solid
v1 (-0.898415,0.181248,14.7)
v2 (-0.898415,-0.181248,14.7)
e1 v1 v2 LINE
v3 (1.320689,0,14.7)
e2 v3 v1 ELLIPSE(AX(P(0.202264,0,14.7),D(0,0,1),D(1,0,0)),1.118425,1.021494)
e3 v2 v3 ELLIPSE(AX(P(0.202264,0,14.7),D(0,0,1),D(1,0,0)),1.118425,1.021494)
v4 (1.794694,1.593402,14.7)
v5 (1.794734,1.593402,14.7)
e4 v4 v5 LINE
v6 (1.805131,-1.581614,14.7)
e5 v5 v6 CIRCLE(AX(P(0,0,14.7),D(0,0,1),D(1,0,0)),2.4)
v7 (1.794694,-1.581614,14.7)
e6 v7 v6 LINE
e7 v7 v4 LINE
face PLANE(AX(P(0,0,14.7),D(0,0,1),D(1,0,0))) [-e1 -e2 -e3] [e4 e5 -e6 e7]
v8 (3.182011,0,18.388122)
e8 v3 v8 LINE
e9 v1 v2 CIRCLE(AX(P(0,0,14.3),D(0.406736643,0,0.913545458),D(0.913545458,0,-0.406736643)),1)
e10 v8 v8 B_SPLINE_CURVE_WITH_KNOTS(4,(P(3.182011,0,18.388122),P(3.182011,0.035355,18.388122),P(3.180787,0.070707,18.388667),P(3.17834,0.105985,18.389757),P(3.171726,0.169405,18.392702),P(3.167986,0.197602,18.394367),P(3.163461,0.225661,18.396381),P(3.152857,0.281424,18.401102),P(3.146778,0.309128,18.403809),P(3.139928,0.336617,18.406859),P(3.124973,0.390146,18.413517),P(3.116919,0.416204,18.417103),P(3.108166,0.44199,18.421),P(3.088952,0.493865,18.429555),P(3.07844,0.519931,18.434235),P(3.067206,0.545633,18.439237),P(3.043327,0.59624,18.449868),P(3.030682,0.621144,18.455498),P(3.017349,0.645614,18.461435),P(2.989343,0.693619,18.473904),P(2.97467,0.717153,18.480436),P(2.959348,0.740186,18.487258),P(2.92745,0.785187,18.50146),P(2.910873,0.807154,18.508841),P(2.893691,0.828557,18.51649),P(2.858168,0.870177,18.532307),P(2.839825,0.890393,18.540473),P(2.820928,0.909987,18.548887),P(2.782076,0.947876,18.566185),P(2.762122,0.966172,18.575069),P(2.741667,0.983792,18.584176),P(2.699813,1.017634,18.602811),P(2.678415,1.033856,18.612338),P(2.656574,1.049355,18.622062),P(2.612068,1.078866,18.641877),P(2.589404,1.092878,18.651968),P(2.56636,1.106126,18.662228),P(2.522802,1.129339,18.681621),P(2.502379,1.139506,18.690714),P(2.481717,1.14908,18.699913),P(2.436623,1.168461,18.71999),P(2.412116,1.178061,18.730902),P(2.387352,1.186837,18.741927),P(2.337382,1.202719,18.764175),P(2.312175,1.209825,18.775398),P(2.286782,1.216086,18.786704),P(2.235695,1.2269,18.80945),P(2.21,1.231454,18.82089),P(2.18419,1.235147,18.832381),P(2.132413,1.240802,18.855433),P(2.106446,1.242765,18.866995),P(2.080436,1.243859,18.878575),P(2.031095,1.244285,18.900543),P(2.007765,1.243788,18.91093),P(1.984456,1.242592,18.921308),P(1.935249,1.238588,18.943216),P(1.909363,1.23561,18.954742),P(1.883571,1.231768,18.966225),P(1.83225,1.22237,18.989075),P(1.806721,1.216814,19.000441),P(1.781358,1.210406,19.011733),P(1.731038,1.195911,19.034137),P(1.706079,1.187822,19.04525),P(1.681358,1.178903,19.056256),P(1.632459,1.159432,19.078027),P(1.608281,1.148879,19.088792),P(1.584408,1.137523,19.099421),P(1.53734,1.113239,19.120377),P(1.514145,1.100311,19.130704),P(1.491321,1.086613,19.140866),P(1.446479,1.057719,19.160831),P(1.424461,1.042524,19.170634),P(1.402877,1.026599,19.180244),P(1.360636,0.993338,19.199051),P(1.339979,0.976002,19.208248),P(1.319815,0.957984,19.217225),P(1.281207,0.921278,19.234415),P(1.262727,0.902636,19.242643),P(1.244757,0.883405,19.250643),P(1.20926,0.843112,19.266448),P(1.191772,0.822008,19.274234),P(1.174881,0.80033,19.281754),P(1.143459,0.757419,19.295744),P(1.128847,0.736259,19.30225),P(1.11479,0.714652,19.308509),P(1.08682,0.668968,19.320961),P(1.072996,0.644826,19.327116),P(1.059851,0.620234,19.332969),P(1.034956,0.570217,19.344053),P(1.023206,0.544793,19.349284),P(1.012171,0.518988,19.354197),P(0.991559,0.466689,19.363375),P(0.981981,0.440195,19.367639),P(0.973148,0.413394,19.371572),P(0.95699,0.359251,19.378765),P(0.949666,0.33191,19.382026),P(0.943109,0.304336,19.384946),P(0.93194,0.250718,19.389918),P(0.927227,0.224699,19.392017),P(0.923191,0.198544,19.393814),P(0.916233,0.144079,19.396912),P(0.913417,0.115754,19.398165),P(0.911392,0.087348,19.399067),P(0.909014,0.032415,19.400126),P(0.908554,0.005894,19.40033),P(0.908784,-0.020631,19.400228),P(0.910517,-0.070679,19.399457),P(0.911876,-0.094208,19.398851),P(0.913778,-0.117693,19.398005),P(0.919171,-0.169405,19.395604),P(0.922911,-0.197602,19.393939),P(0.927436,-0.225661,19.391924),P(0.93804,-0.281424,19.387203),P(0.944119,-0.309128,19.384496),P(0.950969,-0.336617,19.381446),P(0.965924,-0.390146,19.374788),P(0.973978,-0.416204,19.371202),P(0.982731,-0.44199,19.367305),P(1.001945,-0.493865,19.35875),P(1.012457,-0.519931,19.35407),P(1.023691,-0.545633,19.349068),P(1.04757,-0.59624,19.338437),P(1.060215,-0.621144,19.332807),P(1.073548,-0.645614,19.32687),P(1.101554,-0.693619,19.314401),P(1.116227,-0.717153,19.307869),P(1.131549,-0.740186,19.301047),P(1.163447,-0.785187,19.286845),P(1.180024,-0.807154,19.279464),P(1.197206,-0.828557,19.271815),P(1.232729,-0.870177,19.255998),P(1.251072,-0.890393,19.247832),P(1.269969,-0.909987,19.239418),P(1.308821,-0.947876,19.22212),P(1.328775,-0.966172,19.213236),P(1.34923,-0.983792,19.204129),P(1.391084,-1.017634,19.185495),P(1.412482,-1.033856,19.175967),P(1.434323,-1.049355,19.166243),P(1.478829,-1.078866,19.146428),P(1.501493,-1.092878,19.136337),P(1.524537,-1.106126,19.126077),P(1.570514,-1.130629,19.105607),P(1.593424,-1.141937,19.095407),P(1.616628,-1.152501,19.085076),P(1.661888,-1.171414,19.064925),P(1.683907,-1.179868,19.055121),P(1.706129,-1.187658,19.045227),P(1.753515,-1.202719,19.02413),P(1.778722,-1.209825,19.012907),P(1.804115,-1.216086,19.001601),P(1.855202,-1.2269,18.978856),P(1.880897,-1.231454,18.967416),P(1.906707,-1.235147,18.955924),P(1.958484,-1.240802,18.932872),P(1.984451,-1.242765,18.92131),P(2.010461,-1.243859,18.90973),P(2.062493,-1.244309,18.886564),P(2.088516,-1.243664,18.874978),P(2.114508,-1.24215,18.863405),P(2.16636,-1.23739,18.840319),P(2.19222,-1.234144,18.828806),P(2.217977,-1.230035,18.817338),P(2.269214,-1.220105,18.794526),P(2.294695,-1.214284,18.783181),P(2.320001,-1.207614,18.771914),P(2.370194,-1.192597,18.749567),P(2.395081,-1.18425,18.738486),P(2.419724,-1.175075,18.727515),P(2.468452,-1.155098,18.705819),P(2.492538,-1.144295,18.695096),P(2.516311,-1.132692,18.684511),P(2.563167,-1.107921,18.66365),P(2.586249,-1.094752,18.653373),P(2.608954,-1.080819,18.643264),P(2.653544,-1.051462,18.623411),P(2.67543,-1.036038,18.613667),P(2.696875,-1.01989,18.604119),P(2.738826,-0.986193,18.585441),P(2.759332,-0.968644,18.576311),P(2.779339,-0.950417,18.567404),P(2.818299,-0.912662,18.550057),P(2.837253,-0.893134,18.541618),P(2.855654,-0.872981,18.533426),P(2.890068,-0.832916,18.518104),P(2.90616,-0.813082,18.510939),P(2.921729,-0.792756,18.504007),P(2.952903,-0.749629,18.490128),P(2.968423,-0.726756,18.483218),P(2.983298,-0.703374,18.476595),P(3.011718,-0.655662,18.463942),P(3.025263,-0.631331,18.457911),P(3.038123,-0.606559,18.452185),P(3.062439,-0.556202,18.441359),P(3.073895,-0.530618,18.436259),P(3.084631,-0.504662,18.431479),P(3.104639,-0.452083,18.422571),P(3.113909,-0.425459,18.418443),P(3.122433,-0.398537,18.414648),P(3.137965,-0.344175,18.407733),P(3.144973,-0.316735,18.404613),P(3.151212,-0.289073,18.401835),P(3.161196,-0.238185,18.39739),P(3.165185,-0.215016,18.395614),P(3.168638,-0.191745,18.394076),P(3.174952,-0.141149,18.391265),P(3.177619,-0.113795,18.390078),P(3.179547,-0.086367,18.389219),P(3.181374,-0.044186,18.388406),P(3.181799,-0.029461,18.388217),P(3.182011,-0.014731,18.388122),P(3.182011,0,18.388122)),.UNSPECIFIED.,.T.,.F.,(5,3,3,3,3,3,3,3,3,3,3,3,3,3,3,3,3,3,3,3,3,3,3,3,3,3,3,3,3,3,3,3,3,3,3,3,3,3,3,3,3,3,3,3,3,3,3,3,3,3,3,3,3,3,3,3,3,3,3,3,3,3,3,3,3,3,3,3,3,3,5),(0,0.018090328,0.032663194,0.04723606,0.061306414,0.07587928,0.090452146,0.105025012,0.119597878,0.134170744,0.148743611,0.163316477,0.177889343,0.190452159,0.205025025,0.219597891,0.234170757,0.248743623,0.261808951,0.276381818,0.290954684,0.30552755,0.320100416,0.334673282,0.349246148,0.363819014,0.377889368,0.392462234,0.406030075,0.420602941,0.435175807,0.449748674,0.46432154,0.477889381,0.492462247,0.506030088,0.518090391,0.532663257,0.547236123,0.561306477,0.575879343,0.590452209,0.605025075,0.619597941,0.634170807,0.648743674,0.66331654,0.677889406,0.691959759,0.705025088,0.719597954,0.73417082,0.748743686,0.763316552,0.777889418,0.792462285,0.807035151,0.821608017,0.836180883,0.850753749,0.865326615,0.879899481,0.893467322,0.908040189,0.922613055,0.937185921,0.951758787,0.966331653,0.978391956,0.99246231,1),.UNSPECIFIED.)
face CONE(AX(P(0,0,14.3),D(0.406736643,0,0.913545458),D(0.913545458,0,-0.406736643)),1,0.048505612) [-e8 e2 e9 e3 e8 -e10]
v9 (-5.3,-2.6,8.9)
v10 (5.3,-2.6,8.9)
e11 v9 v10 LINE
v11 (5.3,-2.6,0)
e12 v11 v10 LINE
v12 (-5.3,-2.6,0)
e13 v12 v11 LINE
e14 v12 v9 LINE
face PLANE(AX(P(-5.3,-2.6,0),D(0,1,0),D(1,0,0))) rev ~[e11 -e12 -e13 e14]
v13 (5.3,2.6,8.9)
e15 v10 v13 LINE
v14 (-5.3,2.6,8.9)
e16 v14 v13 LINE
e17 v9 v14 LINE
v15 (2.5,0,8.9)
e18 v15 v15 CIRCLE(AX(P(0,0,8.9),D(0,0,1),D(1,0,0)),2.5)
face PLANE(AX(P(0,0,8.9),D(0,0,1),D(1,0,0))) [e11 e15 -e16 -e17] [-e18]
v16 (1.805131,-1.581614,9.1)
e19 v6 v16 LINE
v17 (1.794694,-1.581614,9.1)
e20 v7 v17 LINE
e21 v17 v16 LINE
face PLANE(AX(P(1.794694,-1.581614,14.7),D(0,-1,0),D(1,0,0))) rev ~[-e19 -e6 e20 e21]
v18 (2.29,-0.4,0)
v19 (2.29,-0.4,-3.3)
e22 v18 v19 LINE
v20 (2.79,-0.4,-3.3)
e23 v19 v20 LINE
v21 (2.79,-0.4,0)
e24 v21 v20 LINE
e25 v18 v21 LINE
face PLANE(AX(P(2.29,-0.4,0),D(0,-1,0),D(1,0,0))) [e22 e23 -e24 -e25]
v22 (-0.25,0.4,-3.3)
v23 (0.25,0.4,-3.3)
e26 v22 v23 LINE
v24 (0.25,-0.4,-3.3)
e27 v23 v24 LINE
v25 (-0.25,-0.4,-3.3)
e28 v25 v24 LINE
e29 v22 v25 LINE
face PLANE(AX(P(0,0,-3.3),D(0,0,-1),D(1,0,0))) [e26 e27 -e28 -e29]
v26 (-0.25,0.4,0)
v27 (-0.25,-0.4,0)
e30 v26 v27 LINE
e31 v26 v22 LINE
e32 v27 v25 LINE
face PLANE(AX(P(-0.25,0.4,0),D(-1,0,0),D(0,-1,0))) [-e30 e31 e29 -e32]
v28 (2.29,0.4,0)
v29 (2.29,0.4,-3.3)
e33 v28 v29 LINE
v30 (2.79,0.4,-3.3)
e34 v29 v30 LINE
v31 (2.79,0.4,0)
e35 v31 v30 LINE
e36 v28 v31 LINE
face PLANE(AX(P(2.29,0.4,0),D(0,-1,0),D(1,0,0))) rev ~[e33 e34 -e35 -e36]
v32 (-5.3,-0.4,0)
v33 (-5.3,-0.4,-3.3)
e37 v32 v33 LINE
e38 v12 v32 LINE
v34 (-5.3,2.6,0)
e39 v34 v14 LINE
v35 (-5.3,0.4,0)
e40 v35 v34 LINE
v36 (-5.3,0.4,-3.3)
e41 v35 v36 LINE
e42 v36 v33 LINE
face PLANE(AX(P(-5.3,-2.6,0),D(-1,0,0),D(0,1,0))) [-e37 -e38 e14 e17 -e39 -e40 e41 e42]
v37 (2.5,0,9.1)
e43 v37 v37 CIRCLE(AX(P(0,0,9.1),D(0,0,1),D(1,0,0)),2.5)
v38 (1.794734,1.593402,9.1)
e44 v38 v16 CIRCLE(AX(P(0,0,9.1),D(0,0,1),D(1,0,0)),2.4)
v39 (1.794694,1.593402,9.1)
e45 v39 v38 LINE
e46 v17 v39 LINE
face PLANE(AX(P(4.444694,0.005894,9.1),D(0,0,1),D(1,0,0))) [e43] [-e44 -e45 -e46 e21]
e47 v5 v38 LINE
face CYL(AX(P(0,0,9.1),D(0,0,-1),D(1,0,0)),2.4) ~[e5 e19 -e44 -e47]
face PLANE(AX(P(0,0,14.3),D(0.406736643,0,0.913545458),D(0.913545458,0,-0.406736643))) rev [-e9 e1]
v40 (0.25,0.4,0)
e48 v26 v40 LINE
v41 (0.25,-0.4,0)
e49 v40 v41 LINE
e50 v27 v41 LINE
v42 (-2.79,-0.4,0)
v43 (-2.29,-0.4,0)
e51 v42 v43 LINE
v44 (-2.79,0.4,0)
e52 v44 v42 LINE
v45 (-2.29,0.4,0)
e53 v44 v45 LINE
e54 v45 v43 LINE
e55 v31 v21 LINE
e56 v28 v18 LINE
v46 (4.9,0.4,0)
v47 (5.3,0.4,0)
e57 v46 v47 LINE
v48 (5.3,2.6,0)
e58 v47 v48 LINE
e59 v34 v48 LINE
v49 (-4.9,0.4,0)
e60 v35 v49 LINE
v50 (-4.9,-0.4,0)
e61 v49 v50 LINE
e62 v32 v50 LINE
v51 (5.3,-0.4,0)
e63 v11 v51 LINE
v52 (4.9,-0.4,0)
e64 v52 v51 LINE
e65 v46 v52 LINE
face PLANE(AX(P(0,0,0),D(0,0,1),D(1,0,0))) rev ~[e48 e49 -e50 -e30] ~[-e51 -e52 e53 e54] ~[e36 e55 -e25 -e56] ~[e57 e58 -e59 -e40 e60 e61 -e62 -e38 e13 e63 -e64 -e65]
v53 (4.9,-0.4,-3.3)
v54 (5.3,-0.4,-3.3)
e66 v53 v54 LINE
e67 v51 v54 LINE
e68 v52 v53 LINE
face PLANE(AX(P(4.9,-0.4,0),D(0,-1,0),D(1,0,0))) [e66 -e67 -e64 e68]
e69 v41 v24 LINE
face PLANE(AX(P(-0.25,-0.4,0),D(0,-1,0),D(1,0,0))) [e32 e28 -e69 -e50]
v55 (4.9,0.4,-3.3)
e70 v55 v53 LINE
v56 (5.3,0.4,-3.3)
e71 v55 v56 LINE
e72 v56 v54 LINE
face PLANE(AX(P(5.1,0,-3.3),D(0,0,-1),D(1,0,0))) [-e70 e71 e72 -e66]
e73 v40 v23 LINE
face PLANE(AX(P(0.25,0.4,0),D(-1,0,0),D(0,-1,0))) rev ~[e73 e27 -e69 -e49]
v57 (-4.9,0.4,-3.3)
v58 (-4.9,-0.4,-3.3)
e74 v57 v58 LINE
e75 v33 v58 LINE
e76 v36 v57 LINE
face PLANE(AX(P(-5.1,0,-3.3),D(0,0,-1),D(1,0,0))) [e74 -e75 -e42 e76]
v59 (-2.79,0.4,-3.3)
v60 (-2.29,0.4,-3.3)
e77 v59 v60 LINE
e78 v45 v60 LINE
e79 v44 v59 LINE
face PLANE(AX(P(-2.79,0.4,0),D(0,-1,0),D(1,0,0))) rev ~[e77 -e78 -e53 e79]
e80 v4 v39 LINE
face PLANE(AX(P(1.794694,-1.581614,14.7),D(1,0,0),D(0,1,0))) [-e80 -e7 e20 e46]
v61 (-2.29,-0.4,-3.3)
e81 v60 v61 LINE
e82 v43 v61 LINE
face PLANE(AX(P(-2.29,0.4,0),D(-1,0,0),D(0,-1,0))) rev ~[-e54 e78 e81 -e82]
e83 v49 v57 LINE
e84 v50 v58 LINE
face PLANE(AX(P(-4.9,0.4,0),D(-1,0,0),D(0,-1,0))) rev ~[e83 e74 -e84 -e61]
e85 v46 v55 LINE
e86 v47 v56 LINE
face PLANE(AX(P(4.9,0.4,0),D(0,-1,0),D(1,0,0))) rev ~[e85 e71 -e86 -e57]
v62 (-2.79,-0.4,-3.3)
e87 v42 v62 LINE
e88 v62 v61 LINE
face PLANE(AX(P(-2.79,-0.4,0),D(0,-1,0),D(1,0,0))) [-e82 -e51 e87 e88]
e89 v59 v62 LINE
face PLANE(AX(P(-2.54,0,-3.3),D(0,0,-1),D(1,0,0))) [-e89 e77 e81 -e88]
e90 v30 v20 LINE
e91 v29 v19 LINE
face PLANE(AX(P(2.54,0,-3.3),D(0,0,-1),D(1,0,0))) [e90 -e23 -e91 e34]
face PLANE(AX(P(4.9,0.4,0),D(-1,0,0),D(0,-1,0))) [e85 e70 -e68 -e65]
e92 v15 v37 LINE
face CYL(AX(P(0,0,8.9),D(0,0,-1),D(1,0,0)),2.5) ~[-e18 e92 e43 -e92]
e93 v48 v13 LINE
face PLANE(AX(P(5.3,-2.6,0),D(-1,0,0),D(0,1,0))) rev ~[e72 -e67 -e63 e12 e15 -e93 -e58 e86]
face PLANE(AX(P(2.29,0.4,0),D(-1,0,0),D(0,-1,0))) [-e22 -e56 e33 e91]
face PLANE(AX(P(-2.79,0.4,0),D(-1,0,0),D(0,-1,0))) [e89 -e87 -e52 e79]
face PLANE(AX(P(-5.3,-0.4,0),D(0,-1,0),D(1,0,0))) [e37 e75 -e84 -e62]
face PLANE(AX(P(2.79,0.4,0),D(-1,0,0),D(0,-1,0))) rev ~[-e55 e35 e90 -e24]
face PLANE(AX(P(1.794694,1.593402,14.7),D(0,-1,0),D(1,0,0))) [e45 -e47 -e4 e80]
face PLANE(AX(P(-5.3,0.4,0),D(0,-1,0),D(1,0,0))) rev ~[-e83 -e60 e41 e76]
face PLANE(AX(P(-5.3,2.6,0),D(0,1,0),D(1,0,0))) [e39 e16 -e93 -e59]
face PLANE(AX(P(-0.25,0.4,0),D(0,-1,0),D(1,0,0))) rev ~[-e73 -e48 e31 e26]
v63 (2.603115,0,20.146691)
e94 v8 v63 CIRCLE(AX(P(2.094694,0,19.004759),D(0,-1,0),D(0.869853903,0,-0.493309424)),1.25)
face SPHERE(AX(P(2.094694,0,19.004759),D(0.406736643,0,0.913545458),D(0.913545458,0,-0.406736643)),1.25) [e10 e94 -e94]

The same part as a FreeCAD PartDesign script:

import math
import FreeCAD as App
import Part
import Sketcher
Q = App.Units.Quantity


def add_polygon(sketch, points):
    """Adds a closed chain of lines whose ends are joined by coincident constraints."""
    first, n = sketch.GeometryCount, len(points)
    for a, b in zip(points, points[1:] + points[:1]):
        sketch.addGeometry(Part.LineSegment(App.Vector(*a, 0), App.Vector(*b, 0)), False)
    for i in range(n):
        sketch.addConstraint(Sketcher.Constraint("Coincident", first + i, 2, first + (i + 1) % n, 1))

doc = App.newDocument("Part")
body = doc.addObject("PartDesign::Body", "Body")

sketch1 = body.newObject("Sketcher::SketchObject", "Sketch")
sketch1.AttachmentSupport = (doc.getObject("XY_Plane"), [""])
sketch1.MapMode = "FlatFace"
add_polygon(sketch1, [(-5, 3), (-5, -3), (5, -3), (5, 3)])
sketch1.addConstraint([
    Sketcher.Constraint("Vertical", 0),
    Sketcher.Constraint("Horizontal", 1),
    Sketcher.Constraint("Vertical", 2),
    Sketcher.Constraint("Horizontal", 3),
    Sketcher.Constraint("Symmetric", 0, 2, 2, 2, -1, 1),
    Sketcher.Constraint("DistanceX", 1, 1, 1, 2, 10.6),
    Sketcher.Constraint("DistanceY", 0, 2, 0, 1, 5.2),
])
pad1 = body.newObject("PartDesign::Pad", "Pad")
pad1.Profile = sketch1
pad1.Length = 8.9

sketch2 = body.newObject("Sketcher::SketchObject", "Sketch001")
sketch2.AttachmentSupport = (doc.getObject("XY_Plane"), [""])
sketch2.MapMode = "FlatFace"
sketch2.AttachmentOffset = App.Placement(App.Vector(0, 0, 8.9), App.Rotation())
sketch2.addGeometry(Part.Circle(App.Vector(0, 0, 0), App.Vector(0, 0, 1), 2.5), False)
sketch2.addConstraint([
    Sketcher.Constraint("Coincident", 0, 3, -1, 1),
    Sketcher.Constraint("Diameter", 0, 5.0),
])
pad2 = body.newObject("PartDesign::Pad", "Pad001")
pad2.Profile = sketch2
pad2.Length = 0.2

sketch3 = body.newObject("Sketcher::SketchObject", "Sketch002")
sketch3.AttachmentSupport = (doc.getObject("XY_Plane"), [""])
sketch3.MapMode = "FlatFace"
sketch3.AttachmentOffset = App.Placement(App.Vector(0, 0, 9.1), App.Rotation())
sketch3.addGeometry(Part.Circle(App.Vector(0, 0, 0), App.Vector(0, 0, 1), 2.4), False)
sketch3.addConstraint([
    Sketcher.Constraint("Coincident", 0, 3, -1, 1),
    Sketcher.Constraint("Diameter", 0, 4.8),
])
pad3 = body.newObject("PartDesign::Pad", "Pad002")
pad3.Profile = sketch3
pad3.Length = 5.6

sketch4 = body.newObject("Sketcher::SketchObject", "Sketch003")
sketch4.AttachmentSupport = (doc.getObject("XY_Plane"), [""])
sketch4.MapMode = "FlatFace"
add_polygon(sketch4, [(-0.25, -0.4), (-0.25, 0.4), (0.25, 0.4), (0.25, -0.4)])
add_polygon(sketch4, [(-2.79, -0.4), (-2.79, 0.4), (-2.29, 0.4), (-2.29, -0.4)])
add_polygon(sketch4, [(2.29, -0.4), (2.29, 0.4), (2.79, 0.4), (2.79, -0.4)])
add_polygon(sketch4, [(-5.3, -0.4), (-5.3, 0.4), (-4.9, 0.4), (-4.9, -0.4)])
add_polygon(sketch4, [(4.9, -0.4), (4.9, 0.4), (5.3, 0.4), (5.3, -0.4)])
sketch4.addConstraint([
    Sketcher.Constraint("Vertical", 0),
    Sketcher.Constraint("Horizontal", 1),
    Sketcher.Constraint("Vertical", 2),
    Sketcher.Constraint("Horizontal", 3),
    Sketcher.Constraint("Vertical", 4),
    Sketcher.Constraint("Horizontal", 5),
    Sketcher.Constraint("Vertical", 6),
    Sketcher.Constraint("Horizontal", 7),
    Sketcher.Constraint("Vertical", 8),
    Sketcher.Constraint("Horizontal", 9),
    Sketcher.Constraint("Vertical", 10),
    Sketcher.Constraint("Horizontal", 11),
    Sketcher.Constraint("Vertical", 12),
    Sketcher.Constraint("Horizontal", 13),
    Sketcher.Constraint("Vertical", 14),
    Sketcher.Constraint("Horizontal", 15),
    Sketcher.Constraint("Vertical", 16),
    Sketcher.Constraint("Horizontal", 17),
    Sketcher.Constraint("Vertical", 18),
    Sketcher.Constraint("Horizontal", 19),
    Sketcher.Constraint("Symmetric", 0, 2, 2, 2, -1, 1),
    Sketcher.Constraint("Symmetric", 6, 2, 8, 2, -1, 1),
    Sketcher.Constraint("Symmetric", 4, 2, 10, 2, -1, 1),
    Sketcher.Constraint("Symmetric", 14, 2, 16, 2, -1, 1),
    Sketcher.Constraint("Symmetric", 12, 2, 18, 2, -1, 1),
    Sketcher.Constraint("Horizontal", 1, 2, 4, 2),
    Sketcher.Constraint("Horizontal", 3, 2, 6, 2),
    Sketcher.Constraint("Horizontal", 9, 2, 12, 2),
    Sketcher.Constraint("Horizontal", 11, 2, 14, 2),
    Sketcher.Constraint("Equal", 3, 5),
    Sketcher.Constraint("DistanceX", 1, 1, 1, 2, 0.5),
    Sketcher.Constraint("DistanceX", 13, 1, 13, 2, 0.4),
    Sketcher.Constraint("DistanceY", 0, 1, 0, 2, 0.8),
    Sketcher.Constraint("DistanceX", 12, 2, -1, 1, 5.3),
    Sketcher.Constraint("DistanceX", 4, 2, -1, 1, 2.79),
])
pad4 = body.newObject("PartDesign::Pad", "Pad003")
pad4.Profile = sketch4
pad4.Length = 3.3
pad4.Reversed = True

sketch5 = body.newObject("Sketcher::SketchObject", "Sketch004")
sketch5.AttachmentSupport = (doc.getObject("XZ_Plane"), [""])
sketch5.MapMode = "FlatFace"
add_polygon(sketch5, [(0, 14.3), (0.9, 13.9), (3.2, 18.5), (2.1, 19)])
sketch5.addGeometry(Part.LineSegment(App.Vector(0, 14.3, 0), App.Vector(2.1, 19, 0)), True)
sketch5.addConstraint([
    Sketcher.Constraint("Coincident", 4, 1, 3, 2),
    Sketcher.Constraint("Coincident", 4, 2, 2, 2),
    Sketcher.Constraint("PointOnObject", 3, 2, -2),
    Sketcher.Constraint("Parallel", 0, 2),
    Sketcher.Constraint("Perpendicular", 2, 3),
    Sketcher.Constraint("Angle", 0, Q("-24 deg")),
    Sketcher.Constraint("Distance", 0, 1.0),
    Sketcher.Constraint("DistanceY", -1, 1, 3, 2, 14.3),
    Sketcher.Constraint("Distance", 2, 1.25),
    Sketcher.Constraint("Distance", 3, 5.15),
])
revolution = body.newObject("PartDesign::Revolution", "Revolution")
revolution.Profile = sketch5
revolution.ReferenceAxis = (sketch5, ["Axis0"])
revolution.Angle = 360

sketch6 = body.newObject("Sketcher::SketchObject", "Sketch005")
sketch6.AttachmentSupport = (doc.getObject("XZ_Plane"), [""])
sketch6.MapMode = "FlatFace"
sketch6.addGeometry([
    Part.ArcOfCircle(Part.Circle(App.Vector(2.1, 19, 0), App.Vector(0, 0, 1), 1.2), math.radians(-114), math.radians(66)),
    Part.LineSegment(App.Vector(2.6, 20.1, 0), App.Vector(1.6, 17.9, 0)),
], False)
sketch6.addGeometry(Part.LineSegment(App.Vector(1.6, 17.9, 0), App.Vector(2.6, 20.1, 0)), True)
sketch6.addConstraint([
    Sketcher.Constraint("Coincident", 0, 1, 1, 2),
    Sketcher.Constraint("Coincident", 1, 1, 0, 2),
    Sketcher.Constraint("Coincident", 2, 1, 0, 1),
    Sketcher.Constraint("Coincident", 2, 2, 1, 1),
    Sketcher.Constraint("Angle", 1, Q("-114 deg")),
    Sketcher.Constraint("Radius", 0, 1.25),
    Sketcher.Constraint("DistanceY", -1, 1, 0, 3, 19.004759),
    Sketcher.Constraint("DistanceY", -1, 1, 1, 1, 20.146691),
    Sketcher.Constraint("DistanceX", -1, 1, 0, 3, 2.094694),
])
revolution2 = body.newObject("PartDesign::Revolution", "Revolution001")
revolution2.Profile = sketch6
revolution2.ReferenceAxis = (sketch6, ["Axis0"])
revolution2.Angle = 360

sketch7 = body.newObject("Sketcher::SketchObject", "Sketch006")
sketch7.AttachmentSupport = (doc.getObject("XY_Plane"), [""])
sketch7.MapMode = "FlatFace"
sketch7.AttachmentOffset = App.Placement(App.Vector(0, 0, 14.7), App.Rotation())
add_polygon(sketch7, [(1.8, 1.6), (1.8, -1.6), (7.1, -1.6), (7.1, 1.6)])
sketch7.addConstraint([
    Sketcher.Constraint("Vertical", 0),
    Sketcher.Constraint("Horizontal", 1),
    Sketcher.Constraint("Vertical", 2),
    Sketcher.Constraint("Horizontal", 3),
    Sketcher.Constraint("DistanceX", 1, 1, 1, 2, 5.3),
    Sketcher.Constraint("DistanceY", 0, 2, 0, 1, 3.175016),
    Sketcher.Constraint("DistanceX", -1, 1, 0, 2, 1.794694),
    Sketcher.Constraint("DistanceY", 0, 2, -1, 1, 1.581614),
])
pocket1 = body.newObject("PartDesign::Pocket", "Pocket")
pocket1.Profile = sketch7
pocket1.Length = 5.6

doc.recompute()
